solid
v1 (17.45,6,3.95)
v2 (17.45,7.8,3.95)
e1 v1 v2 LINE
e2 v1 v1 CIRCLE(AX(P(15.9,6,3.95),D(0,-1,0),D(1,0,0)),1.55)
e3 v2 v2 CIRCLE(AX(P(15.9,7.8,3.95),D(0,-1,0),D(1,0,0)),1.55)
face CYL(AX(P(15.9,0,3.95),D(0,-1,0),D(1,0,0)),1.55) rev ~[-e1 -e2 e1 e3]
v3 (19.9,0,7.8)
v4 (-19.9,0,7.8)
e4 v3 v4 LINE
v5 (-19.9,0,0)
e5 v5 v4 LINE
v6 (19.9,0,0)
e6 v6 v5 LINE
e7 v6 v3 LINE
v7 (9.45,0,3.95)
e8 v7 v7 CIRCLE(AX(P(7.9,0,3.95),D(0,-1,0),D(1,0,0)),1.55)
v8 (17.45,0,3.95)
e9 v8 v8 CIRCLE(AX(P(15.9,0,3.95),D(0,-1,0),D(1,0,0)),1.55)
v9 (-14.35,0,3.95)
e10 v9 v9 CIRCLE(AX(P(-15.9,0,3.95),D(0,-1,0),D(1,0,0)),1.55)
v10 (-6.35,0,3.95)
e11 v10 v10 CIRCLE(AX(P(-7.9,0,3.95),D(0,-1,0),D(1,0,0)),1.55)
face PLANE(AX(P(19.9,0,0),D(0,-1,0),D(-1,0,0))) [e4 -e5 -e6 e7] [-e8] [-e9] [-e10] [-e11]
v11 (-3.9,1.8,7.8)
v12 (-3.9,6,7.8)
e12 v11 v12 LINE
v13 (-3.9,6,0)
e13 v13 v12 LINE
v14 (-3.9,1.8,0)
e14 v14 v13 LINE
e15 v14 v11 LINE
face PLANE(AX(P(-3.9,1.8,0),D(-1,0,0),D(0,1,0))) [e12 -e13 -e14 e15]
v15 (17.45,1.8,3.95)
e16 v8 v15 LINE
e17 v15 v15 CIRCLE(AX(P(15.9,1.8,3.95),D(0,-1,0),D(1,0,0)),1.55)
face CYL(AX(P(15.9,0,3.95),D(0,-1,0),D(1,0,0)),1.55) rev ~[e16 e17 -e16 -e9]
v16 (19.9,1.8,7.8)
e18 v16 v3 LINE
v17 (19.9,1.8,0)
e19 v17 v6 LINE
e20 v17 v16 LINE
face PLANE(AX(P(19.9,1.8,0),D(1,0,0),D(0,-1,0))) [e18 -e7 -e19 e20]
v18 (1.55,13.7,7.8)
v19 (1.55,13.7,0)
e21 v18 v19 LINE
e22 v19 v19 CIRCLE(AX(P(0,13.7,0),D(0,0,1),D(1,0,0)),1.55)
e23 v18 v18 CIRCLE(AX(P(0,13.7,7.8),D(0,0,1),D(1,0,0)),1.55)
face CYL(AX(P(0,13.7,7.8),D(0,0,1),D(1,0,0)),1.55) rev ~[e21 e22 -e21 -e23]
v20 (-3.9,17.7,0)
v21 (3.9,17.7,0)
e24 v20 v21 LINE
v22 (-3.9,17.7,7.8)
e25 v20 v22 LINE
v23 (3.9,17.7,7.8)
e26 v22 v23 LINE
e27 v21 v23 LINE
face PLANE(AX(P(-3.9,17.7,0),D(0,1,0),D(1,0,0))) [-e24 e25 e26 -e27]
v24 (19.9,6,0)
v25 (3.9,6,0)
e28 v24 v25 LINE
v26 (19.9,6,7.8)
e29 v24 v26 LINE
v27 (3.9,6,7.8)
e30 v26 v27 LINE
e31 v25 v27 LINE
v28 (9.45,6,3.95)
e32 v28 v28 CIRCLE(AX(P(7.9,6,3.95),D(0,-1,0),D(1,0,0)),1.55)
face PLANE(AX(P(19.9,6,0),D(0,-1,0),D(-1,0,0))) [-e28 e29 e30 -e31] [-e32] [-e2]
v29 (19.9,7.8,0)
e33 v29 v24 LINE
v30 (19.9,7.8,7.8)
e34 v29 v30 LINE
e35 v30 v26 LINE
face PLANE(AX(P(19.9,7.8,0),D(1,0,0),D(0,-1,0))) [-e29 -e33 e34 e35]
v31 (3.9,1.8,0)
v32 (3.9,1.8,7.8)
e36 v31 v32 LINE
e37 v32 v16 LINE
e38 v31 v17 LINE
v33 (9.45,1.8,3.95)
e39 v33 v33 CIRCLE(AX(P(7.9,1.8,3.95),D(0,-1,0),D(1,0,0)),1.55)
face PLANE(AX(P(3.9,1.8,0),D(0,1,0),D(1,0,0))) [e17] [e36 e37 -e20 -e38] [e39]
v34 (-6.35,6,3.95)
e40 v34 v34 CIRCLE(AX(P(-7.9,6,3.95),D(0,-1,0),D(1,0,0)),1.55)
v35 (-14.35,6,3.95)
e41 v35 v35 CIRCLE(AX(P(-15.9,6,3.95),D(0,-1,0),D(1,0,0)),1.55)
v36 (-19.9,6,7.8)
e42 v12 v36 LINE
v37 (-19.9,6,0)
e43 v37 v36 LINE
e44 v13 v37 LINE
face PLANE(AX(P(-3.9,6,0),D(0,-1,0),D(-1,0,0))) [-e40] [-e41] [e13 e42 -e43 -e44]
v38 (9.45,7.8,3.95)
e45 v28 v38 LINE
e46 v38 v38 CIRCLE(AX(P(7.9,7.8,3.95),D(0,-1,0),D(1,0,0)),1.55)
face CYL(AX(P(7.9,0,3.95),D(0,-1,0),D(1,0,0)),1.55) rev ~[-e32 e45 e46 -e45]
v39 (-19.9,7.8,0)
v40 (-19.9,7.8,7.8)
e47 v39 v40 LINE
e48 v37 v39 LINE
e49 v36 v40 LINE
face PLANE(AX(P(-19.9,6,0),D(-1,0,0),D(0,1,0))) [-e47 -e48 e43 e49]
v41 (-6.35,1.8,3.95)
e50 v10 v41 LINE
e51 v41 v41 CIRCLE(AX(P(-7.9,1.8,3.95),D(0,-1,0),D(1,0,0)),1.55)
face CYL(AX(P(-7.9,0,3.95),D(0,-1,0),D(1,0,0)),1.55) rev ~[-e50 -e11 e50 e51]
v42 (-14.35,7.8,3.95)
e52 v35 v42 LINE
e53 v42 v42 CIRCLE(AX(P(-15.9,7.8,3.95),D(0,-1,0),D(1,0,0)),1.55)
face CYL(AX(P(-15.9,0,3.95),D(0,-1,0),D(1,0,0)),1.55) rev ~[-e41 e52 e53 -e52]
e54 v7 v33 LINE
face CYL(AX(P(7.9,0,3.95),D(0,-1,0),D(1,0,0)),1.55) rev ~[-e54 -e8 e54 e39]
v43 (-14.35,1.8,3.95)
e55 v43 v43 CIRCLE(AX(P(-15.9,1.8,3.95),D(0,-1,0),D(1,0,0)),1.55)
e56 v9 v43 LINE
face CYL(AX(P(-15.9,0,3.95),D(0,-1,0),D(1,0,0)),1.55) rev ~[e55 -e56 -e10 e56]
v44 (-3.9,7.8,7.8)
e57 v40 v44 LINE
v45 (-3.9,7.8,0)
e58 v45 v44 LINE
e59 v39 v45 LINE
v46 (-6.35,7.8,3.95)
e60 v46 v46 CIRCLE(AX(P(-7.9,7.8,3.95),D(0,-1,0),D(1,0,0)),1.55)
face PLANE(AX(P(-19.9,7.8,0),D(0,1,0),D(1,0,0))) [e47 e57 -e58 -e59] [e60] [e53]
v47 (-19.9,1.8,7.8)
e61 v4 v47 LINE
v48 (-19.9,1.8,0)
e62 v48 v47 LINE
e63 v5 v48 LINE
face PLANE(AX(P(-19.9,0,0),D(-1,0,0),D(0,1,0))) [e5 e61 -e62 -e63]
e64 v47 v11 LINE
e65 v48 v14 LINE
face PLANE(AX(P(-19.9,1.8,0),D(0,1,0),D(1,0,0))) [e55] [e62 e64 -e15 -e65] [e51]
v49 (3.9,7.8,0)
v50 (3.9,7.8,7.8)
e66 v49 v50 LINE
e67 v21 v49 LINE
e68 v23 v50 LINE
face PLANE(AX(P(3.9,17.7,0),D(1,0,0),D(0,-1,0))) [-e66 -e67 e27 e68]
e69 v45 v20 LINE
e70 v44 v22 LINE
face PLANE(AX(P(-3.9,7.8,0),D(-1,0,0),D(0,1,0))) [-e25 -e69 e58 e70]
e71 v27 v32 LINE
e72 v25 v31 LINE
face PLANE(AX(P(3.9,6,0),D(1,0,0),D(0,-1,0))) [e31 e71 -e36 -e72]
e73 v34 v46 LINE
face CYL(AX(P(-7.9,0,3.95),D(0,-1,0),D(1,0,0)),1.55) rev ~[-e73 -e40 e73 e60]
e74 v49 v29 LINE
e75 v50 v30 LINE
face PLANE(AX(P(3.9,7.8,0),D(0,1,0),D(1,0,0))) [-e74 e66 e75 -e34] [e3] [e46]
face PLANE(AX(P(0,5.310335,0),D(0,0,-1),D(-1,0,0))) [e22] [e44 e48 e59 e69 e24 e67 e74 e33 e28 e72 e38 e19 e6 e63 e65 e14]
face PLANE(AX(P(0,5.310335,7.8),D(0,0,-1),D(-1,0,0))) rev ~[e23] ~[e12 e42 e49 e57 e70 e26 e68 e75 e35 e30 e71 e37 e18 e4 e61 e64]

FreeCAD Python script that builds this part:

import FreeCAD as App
import Part
import Sketcher
from FreeCAD import Vector

doc = App.newDocument("Part")
params = doc.addObject("Spreadsheet::Sheet", "Params")
for row, (alias, value) in enumerate([
    ("sketch1_width", "16 mm"),
    ("sketch1_width2", "7.8 mm"),
    ("sketch1_height", "9.9 mm"),
    ("sketch1_height2", "1.8 mm"),
    ("sketch1_height3", "4.2 mm"),
    ("pad1_length", "7.8 mm"),
    ("sketch2_diameter", "3.1 mm"),
    ("sketch3_diameter", "3.1 mm"),
], start=1):
    params.set(f"A{row}", alias)
    params.set(f"B{row}", "=" + value)
    params.setAlias(f"B{row}", alias)

body = doc.addObject("PartDesign::Body", "Body")

# Sketch on XY plane
sketch1 = doc.addObject("Sketcher::SketchObject", "Sketch")
body.addObject(sketch1)
sketch1.AttachmentSupport = (doc.XY_Plane, [""])
sketch1.MapMode = "FlatFace"
sketch1.addGeometry([
    Part.LineSegment(Vector(3.9, 17.7, 0), Vector(-3.9, 17.7, 0)),  # 0
    Part.LineSegment(Vector(-3.9, 17.7, 0), Vector(-3.9, 7.8, 0)),  # 1
    Part.LineSegment(Vector(-3.9, 7.8, 0), Vector(-19.9, 7.8, 0)),  # 2
    Part.LineSegment(Vector(-19.9, 7.8, 0), Vector(-19.9, 6, 0)),  # 3
    Part.LineSegment(Vector(-19.9, 6, 0), Vector(-3.9, 6, 0)),  # 4
    Part.LineSegment(Vector(-3.9, 6, 0), Vector(-3.9, 1.8, 0)),  # 5
    Part.LineSegment(Vector(-3.9, 1.8, 0), Vector(-19.9, 1.8, 0)),  # 6
    Part.LineSegment(Vector(-19.9, 1.8, 0), Vector(-19.9, 0, 0)),  # 7
    Part.LineSegment(Vector(-19.9, 0, 0), Vector(19.9, 0, 0)),  # 8
    Part.LineSegment(Vector(19.9, 0, 0), Vector(19.9, 1.8, 0)),  # 9
    Part.LineSegment(Vector(19.9, 1.8, 0), Vector(3.9, 1.8, 0)),  # 10
    Part.LineSegment(Vector(3.9, 1.8, 0), Vector(3.9, 6, 0)),  # 11
    Part.LineSegment(Vector(3.9, 6, 0), Vector(19.9, 6, 0)),  # 12
    Part.LineSegment(Vector(19.9, 6, 0), Vector(19.9, 7.8, 0)),  # 13
    Part.LineSegment(Vector(19.9, 7.8, 0), Vector(3.9, 7.8, 0)),  # 14
    Part.LineSegment(Vector(3.9, 7.8, 0), Vector(3.9, 17.7, 0)),  # 15
], False)
sketch1.addConstraint([
    Sketcher.Constraint("Coincident", 0, 2, 1, 1),
    Sketcher.Constraint("Coincident", 1, 2, 2, 1),
    Sketcher.Constraint("Coincident", 2, 2, 3, 1),
    Sketcher.Constraint("Coincident", 3, 2, 4, 1),
    Sketcher.Constraint("Coincident", 4, 2, 5, 1),
    Sketcher.Constraint("Coincident", 5, 2, 6, 1),
    Sketcher.Constraint("Coincident", 6, 2, 7, 1),
    Sketcher.Constraint("Coincident", 7, 2, 8, 1),
    Sketcher.Constraint("Coincident", 8, 2, 9, 1),
    Sketcher.Constraint("Coincident", 9, 2, 10, 1),
    Sketcher.Constraint("Coincident", 10, 2, 11, 1),
    Sketcher.Constraint("Coincident", 11, 2, 12, 1),
    Sketcher.Constraint("Coincident", 12, 2, 13, 1),
    Sketcher.Constraint("Coincident", 13, 2, 14, 1),
    Sketcher.Constraint("Coincident", 14, 2, 15, 1),
    Sketcher.Constraint("Coincident", 15, 2, 0, 1),
    Sketcher.Constraint("Horizontal", 0),
    Sketcher.Constraint("Vertical", 1),
    Sketcher.Constraint("Horizontal", 2),
    Sketcher.Constraint("Vertical", 3),
    Sketcher.Constraint("Horizontal", 4),
    Sketcher.Constraint("Vertical", 5),
    Sketcher.Constraint("Horizontal", 6),
    Sketcher.Constraint("Vertical", 7),
    Sketcher.Constraint("Horizontal", 8),
    Sketcher.Constraint("Vertical", 9),
    Sketcher.Constraint("Horizontal", 10),
    Sketcher.Constraint("Vertical", 11),
    Sketcher.Constraint("Horizontal", 12),
    Sketcher.Constraint("Vertical", 13),
    Sketcher.Constraint("Horizontal", 14),
    Sketcher.Constraint("Vertical", 15),
    Sketcher.Constraint("Symmetric", 7, 2, 8, 2, -1, 1),
    Sketcher.Constraint("Symmetric", 5, 2, 10, 2, -2),
    Sketcher.Constraint("Symmetric", 3, 2, 12, 2, -2),
    Sketcher.Constraint("Symmetric", 1, 2, 14, 2, -2),
    Sketcher.Constraint("Vertical", 1, 2, 4, 2),
    Sketcher.Constraint("Vertical", 3, 2, 6, 2),
    Sketcher.Constraint("Equal", 3, 7),
    Sketcher.Constraint("DistanceX", 2, 2, 2, 1, 16.0),
    Sketcher.Constraint("DistanceX", 0, 2, 0, 1, 7.8),
    Sketcher.Constraint("DistanceY", 1, 2, 1, 1, 9.9),
    Sketcher.Constraint("DistanceY", 3, 2, 3, 1, 1.8),
    Sketcher.Constraint("DistanceY", 5, 2, 5, 1, 4.2),
])
sketch1.setExpression("Constraints[39]", "Params.sketch1_width")
sketch1.setExpression("Constraints[40]", "Params.sketch1_width2")
sketch1.setExpression("Constraints[41]", "Params.sketch1_height")
sketch1.setExpression("Constraints[42]", "Params.sketch1_height2")
sketch1.setExpression("Constraints[43]", "Params.sketch1_height3")
pad1 = doc.addObject("PartDesign::Pad", "Pad")
body.addObject(pad1)
pad1.Profile = sketch1
pad1.setExpression("Length", "Params.pad1_length")

# Sketch on XZ plane
sketch2 = doc.addObject("Sketcher::SketchObject", "Sketch001")
body.addObject(sketch2)
sketch2.AttachmentSupport = (doc.XZ_Plane, [""])
sketch2.MapMode = "FlatFace"
sketch2.addGeometry([
    Part.Circle(Vector(-15.9, 4, 0), Vector(0, 0, 1), 1.6),
    Part.Circle(Vector(-7.9, 4, 0), Vector(0, 0, 1), 1.6),
    Part.Circle(Vector(7.9, 4, 0), Vector(0, 0, 1), 1.6),
    Part.Circle(Vector(15.9, 4, 0), Vector(0, 0, 1), 1.6),
], False)
sketch2.addConstraint([
    Sketcher.Constraint("Equal", 0, 1),
    Sketcher.Constraint("Equal", 1, 2),
    Sketcher.Constraint("Equal", 2, 3),
    Sketcher.Constraint("Symmetric", 1, 3, 2, 3, -2),
    Sketcher.Constraint("Symmetric", 0, 3, 3, 3, -2),
    Sketcher.Constraint("Horizontal", 0, 3, 1, 3),
    Sketcher.Constraint("Diameter", 0, 3.1),
    Sketcher.Constraint("DistanceX", 0, 3, 1, 3, 8.0),
    Sketcher.Constraint("DistanceX", 0, 3, -1, 1, 15.9),
    Sketcher.Constraint("DistanceY", -1, 1, 0, 3, 3.95),
])
sketch2.setExpression("Constraints[6]", "Params.sketch2_diameter")
pocket1 = doc.addObject("PartDesign::Pocket", "Pocket")
body.addObject(pocket1)
pocket1.Profile = sketch2
pocket1.Type = "ThroughAll"

# Sketch on XY plane
sketch3 = doc.addObject("Sketcher::SketchObject", "Sketch002")
body.addObject(sketch3)
sketch3.AttachmentSupport = (doc.XY_Plane, [""])
sketch3.MapMode = "FlatFace"
sketch3.AttachmentOffset = App.Placement(Vector(0, 0, 7.8), App.Rotation())
sketch3.addGeometry(Part.Circle(Vector(0, 13.7, 0), Vector(0, 0, 1), 1.6), False)
sketch3.addConstraint([
    Sketcher.Constraint("PointOnObject", 0, 3, -2),
    Sketcher.Constraint("Diameter", 0, 3.1),
    Sketcher.Constraint("DistanceY", -1, 1, 0, 3, 13.7),
])
sketch3.setExpression("Constraints[1]", "Params.sketch3_diameter")
pocket2 = doc.addObject("PartDesign::Pocket", "Pocket001")
body.addObject(pocket2)
pocket2.Profile = sketch3
pocket2.Type = "ThroughAll"

doc.recompute()
